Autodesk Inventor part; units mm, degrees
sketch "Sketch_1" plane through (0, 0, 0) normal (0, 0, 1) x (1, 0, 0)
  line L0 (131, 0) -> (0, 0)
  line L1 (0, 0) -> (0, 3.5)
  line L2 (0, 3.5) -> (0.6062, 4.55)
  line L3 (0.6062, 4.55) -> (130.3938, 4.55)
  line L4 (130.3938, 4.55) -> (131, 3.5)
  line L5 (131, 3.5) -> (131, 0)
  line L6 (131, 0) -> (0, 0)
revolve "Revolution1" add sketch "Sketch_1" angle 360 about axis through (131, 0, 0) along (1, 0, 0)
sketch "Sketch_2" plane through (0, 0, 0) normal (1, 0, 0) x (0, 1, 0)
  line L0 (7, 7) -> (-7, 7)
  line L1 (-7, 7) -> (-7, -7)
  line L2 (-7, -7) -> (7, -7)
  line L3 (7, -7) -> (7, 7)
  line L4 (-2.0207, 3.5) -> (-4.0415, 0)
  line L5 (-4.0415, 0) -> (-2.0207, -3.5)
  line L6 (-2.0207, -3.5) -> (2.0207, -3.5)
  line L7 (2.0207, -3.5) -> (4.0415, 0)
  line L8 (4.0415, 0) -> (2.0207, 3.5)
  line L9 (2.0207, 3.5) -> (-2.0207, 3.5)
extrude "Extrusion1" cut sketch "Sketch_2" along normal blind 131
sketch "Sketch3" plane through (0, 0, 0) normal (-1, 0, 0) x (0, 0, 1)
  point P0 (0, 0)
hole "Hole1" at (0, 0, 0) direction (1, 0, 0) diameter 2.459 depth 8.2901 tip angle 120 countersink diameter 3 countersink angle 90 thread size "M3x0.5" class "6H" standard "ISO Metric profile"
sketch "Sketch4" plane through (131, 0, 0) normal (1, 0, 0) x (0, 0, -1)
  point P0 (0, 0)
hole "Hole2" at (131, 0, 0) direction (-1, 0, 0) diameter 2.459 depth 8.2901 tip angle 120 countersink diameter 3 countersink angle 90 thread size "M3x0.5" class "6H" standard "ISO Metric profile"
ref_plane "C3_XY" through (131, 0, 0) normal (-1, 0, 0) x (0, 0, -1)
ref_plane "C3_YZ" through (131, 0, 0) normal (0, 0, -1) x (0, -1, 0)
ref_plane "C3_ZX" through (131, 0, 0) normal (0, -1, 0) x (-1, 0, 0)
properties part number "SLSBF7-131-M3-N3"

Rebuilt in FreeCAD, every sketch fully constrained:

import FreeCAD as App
import Part
import Sketcher
Q = App.Units.Quantity

doc = App.newDocument("Part")
body = doc.addObject("PartDesign::Body", "Body")

# Sketch on XY plane
sketch1 = doc.addObject("Sketcher::SketchObject", "Sketch")
body.addObject(sketch1)
sketch1.AttachmentSupport = (doc.XY_Plane, [""])
sketch1.MapMode = "FlatFace"
sketch1.addGeometry([
    Part.LineSegment(App.Vector(0, 0, 0), App.Vector(131, 0, 0)),  # 0
    Part.LineSegment(App.Vector(131, 0, 0), App.Vector(131, 3.5, 0)),  # 1
    Part.LineSegment(App.Vector(131, 3.5, 0), App.Vector(130.4, 4.5, 0)),  # 2
    Part.LineSegment(App.Vector(130.4, 4.5, 0), App.Vector(0.6, 4.5, 0)),  # 3
    Part.LineSegment(App.Vector(0.6, 4.5, 0), App.Vector(0, 3.5, 0)),  # 4
    Part.LineSegment(App.Vector(0, 3.5, 0), App.Vector(0, 0, 0)),  # 5
], False)
sketch1.addConstraint([
    Sketcher.Constraint("Coincident", 0, 2, 1, 1),
    Sketcher.Constraint("Coincident", 1, 2, 2, 1),
    Sketcher.Constraint("Coincident", 2, 2, 3, 1),
    Sketcher.Constraint("Coincident", 3, 2, 4, 1),
    Sketcher.Constraint("Coincident", 4, 2, 5, 1),
    Sketcher.Constraint("Coincident", 5, 2, 0, 1),
    Sketcher.Constraint("Horizontal", 0),
    Sketcher.Constraint("Vertical", 1),
    Sketcher.Constraint("Horizontal", 3),
    Sketcher.Constraint("Vertical", 5),
    Sketcher.Constraint("Coincident", 5, 2, -1, 1),
    Sketcher.Constraint("Horizontal", 1, 2, 4, 2),
    Sketcher.Constraint("Equal", 2, 4),
    Sketcher.Constraint("DistanceX", 0, 1, 0, 2, Q("131 mm")),
    Sketcher.Constraint("Angle", 2, Q("119.9993 deg")),
    Sketcher.Constraint("DistanceY", 1, 1, 1, 2, Q("3.5 mm")),
    Sketcher.Constraint("DistanceY", -1, 1, 2, 2, Q("4.55 mm")),
])
revolution = doc.addObject("PartDesign::Revolution", "Revolution")
body.addObject(revolution)
revolution.Profile = sketch1
revolution.ReferenceAxis = (sketch1, ["H_Axis"])
revolution.Angle = 360

# Sketch on YZ plane
sketch2 = doc.addObject("Sketcher::SketchObject", "Sketch001")
body.addObject(sketch2)
sketch2.AttachmentSupport = (doc.YZ_Plane, [""])
sketch2.MapMode = "FlatFace"
sketch2.addGeometry([
    Part.LineSegment(App.Vector(7, -7, 0), App.Vector(7, 7, 0)),  # 0
    Part.LineSegment(App.Vector(7, 7, 0), App.Vector(-7, 7, 0)),  # 1
    Part.LineSegment(App.Vector(-7, 7, 0), App.Vector(-7, -7, 0)),  # 2
    Part.LineSegment(App.Vector(-7, -7, 0), App.Vector(7, -7, 0)),  # 3
    Part.LineSegment(App.Vector(-4, 0, 0), App.Vector(-2, 3.5, 0)),  # 4
    Part.LineSegment(App.Vector(-2, 3.5, 0), App.Vector(2, 3.5, 0)),  # 5
    Part.LineSegment(App.Vector(2, 3.5, 0), App.Vector(4, 0, 0)),  # 6
    Part.LineSegment(App.Vector(4, 0, 0), App.Vector(2, -3.5, 0)),  # 7
    Part.LineSegment(App.Vector(2, -3.5, 0), App.Vector(-2, -3.5, 0)),  # 8
    Part.LineSegment(App.Vector(-2, -3.5, 0), App.Vector(-4, 0, 0)),  # 9
], False)
sketch2.addConstraint([
    Sketcher.Constraint("Coincident", 0, 2, 1, 1),
    Sketcher.Constraint("Coincident", 1, 2, 2, 1),
    Sketcher.Constraint("Coincident", 2, 2, 3, 1),
    Sketcher.Constraint("Coincident", 3, 2, 0, 1),
    Sketcher.Constraint("Coincident", 4, 2, 5, 1),
    Sketcher.Constraint("Coincident", 5, 2, 6, 1),
    Sketcher.Constraint("Coincident", 6, 2, 7, 1),
    Sketcher.Constraint("Coincident", 7, 2, 8, 1),
    Sketcher.Constraint("Coincident", 8, 2, 9, 1),
    Sketcher.Constraint("Coincident", 9, 2, 4, 1),
    Sketcher.Constraint("Vertical", 0),
    Sketcher.Constraint("Horizontal", 1),
    Sketcher.Constraint("Vertical", 2),
    Sketcher.Constraint("Horizontal", 3),
    Sketcher.Constraint("Horizontal", 5),
    Sketcher.Constraint("Horizontal", 8),
    Sketcher.Constraint("Symmetric", 0, 2, 2, 2, -1, 1),
    Sketcher.Constraint("Symmetric", 4, 2, 7, 2, -1, 1),
    Sketcher.Constraint("Symmetric", 6, 2, 9, 2, -1, 1),
    Sketcher.Constraint("PointOnObject", 6, 2, -1),
    Sketcher.Constraint("Parallel", 6, 9),
    Sketcher.Constraint("Vertical", 5, 2, 7, 2),
    Sketcher.Constraint("Equal", 3, 0),
    Sketcher.Constraint("DistanceX", 1, 2, 1, 1, Q("14 mm")),
    Sketcher.Constraint("Angle", 4, Q("59.999 deg")),
    Sketcher.Constraint("DistanceY", 7, 2, 5, 2, Q("7 mm")),
    Sketcher.Constraint("DistanceX", 5, 1, 5, 2, Q("4.0414 mm")),
])
pocket1 = doc.addObject("PartDesign::Pocket", "Pocket")
body.addObject(pocket1)
pocket1.Profile = sketch2
pocket1.Length = 131
pocket1.Reversed = True

# Sketch on YZ plane
sketch3 = doc.addObject("Sketcher::SketchObject", "Sketch002")
body.addObject(sketch3)
sketch3.AttachmentSupport = (doc.YZ_Plane, [""])
sketch3.MapMode = "FlatFace"
sketch3.addGeometry(Part.Circle(App.Vector(0, 0, 0), App.Vector(0, 0, 1), 1.2), False)
sketch3.addConstraint([
    Sketcher.Constraint("Coincident", 0, 3, -1, 1),
    Sketcher.Constraint("Diameter", 0, Q("2.459 mm")),
])
doc.recompute()
hole = doc.addObject("PartDesign::Hole", "Hole")
body.addObject(hole)
hole.Profile = sketch3
hole.ThreadType = "None"
hole.Diameter = 2.459
hole.DepthType = "Dimension"
hole.Depth = 8.2901
hole.DrillPoint = "Angled"
hole.DrillPointAngle = 120
hole.HoleCutType = "Countersink"
hole.HoleCutDiameter = 3
hole.HoleCutCountersinkAngle = 90
hole.Reversed = True

# Sketch on YZ plane
sketch4 = doc.addObject("Sketcher::SketchObject", "Sketch003")
body.addObject(sketch4)
sketch4.AttachmentSupport = (doc.YZ_Plane, [""])
sketch4.MapMode = "FlatFace"
sketch4.AttachmentOffset = App.Placement(App.Vector(0, 0, 131), App.Rotation())
sketch4.addGeometry(Part.Circle(App.Vector(0, 0, 0), App.Vector(0, 0, 1), 1.2), False)
sketch4.addConstraint([
    Sketcher.Constraint("Coincident", 0, 3, -1, 1),
    Sketcher.Constraint("Diameter", 0, Q("2.459 mm")),
])
doc.recompute()
hole2 = doc.addObject("PartDesign::Hole", "Hole001")
body.addObject(hole2)
hole2.Profile = sketch4
hole2.ThreadType = "None"
hole2.Diameter = 2.459
hole2.DepthType = "Dimension"
hole2.Depth = 8.2901
hole2.DrillPoint = "Angled"
hole2.DrillPointAngle = 120
hole2.HoleCutType = "Countersink"
hole2.HoleCutDiameter = 3
hole2.HoleCutCountersinkAngle = 90

doc.recompute()
